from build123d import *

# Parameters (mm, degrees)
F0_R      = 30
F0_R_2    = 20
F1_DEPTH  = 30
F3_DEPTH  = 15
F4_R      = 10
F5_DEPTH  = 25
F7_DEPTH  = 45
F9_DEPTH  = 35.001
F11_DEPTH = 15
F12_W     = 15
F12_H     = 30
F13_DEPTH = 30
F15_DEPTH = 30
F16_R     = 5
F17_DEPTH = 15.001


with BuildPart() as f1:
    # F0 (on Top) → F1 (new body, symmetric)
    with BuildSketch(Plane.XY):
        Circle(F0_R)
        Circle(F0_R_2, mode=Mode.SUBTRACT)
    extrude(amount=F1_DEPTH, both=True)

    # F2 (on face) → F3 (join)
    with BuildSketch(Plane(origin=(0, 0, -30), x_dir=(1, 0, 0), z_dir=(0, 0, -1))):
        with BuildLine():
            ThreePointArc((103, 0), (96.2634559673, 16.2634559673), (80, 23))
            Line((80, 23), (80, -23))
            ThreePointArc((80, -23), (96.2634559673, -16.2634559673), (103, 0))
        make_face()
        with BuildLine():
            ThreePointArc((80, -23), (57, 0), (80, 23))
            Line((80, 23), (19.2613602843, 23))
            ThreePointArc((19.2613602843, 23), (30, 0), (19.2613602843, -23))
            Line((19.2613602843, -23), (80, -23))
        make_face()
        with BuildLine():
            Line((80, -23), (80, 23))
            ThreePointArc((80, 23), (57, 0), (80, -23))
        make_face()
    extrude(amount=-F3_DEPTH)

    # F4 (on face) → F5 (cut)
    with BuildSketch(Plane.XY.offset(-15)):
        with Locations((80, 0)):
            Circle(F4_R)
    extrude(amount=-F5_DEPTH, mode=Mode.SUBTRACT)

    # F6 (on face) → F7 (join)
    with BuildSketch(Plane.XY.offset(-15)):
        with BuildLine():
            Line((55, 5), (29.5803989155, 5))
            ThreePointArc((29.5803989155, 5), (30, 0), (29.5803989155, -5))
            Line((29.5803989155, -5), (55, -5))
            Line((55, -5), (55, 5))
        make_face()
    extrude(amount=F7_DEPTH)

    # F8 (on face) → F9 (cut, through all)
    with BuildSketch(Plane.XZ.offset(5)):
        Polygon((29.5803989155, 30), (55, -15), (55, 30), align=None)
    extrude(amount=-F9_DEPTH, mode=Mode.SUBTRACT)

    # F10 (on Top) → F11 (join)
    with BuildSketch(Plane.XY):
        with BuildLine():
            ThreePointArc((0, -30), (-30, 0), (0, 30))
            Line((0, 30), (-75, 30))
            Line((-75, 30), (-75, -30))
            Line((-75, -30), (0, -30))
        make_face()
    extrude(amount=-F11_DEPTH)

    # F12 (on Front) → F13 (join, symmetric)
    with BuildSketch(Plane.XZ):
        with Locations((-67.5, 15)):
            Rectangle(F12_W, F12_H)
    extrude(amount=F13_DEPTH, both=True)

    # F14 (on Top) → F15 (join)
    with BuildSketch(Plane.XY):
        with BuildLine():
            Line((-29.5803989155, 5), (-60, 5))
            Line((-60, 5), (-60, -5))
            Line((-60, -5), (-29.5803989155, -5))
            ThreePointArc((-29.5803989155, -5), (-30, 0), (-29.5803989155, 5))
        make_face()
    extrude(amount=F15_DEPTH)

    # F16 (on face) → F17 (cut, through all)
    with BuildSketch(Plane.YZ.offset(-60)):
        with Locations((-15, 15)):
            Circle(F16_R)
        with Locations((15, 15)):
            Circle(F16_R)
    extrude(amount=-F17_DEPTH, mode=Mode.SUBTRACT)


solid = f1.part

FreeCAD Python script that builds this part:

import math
import FreeCAD as App
import Part
import Sketcher

V = App.Vector
Q = App.Units.Quantity


def add_polygon(sketch, points):
    """Adds a closed chain of lines whose ends are joined by coincident constraints."""
    first, n = sketch.GeometryCount, len(points)
    for a, b in zip(points, points[1:] + points[:1]):
        sketch.addGeometry(Part.LineSegment(App.Vector(*a, 0), App.Vector(*b, 0)), False)
    for i in range(n):
        sketch.addConstraint(Sketcher.Constraint("Coincident", first + i, 2, first + (i + 1) % n, 1))

doc = App.newDocument("Part")
body = doc.addObject("PartDesign::Body", "Body")

sketch1 = body.newObject("Sketcher::SketchObject", "Sketch")
sketch1.AttachmentSupport = (doc.getObject("XY_Plane"), [""])
sketch1.MapMode = "FlatFace"
sketch1.addGeometry(Part.Circle(V(0, 0, 0), V(0, 0, 1), 30), False)
sketch1.addGeometry(Part.Circle(V(0, 0, 0), V(0, 0, 1), 20), False)
sketch1.addConstraint(Sketcher.Constraint("Coincident", 0, 3, -1, 1))
sketch1.addConstraint(Sketcher.Constraint("Coincident", 1, 3, -1, 1))
sketch1.addConstraint(Sketcher.Constraint("Diameter", 0, Q("60 mm")))
sketch1.addConstraint(Sketcher.Constraint("Diameter", 1, Q("40 mm")))
pad1 = body.newObject("PartDesign::Pad", "Pad")
pad1.Profile = sketch1
pad1.Length = 60
pad1.Midplane = True

sketch2 = body.newObject("Sketcher::SketchObject", "Sketch001")
sketch2.AttachmentSupport = (doc.getObject("XY_Plane"), [""])
sketch2.MapMode = "FlatFace"
sketch2.AttachmentOffset = App.Placement(V(0, 0, -30), App.Rotation())
sketch2.addGeometry(Part.ArcOfCircle(Part.Circle(V(80, 0, 0), V(0, 0, 1), 23), math.radians(-90), math.radians(0)), False)
sketch2.addGeometry(Part.LineSegment(V(80, -23, 0), V(19, -23, 0)), False)
sketch2.addGeometry(Part.ArcOfCircle(Part.Circle(V(0, 0, 0), V(0, 0, 1), 30), math.radians(-50), math.radians(50)), False)
sketch2.addGeometry(Part.LineSegment(V(19, 23, 0), V(80, 23, 0)), False)
sketch2.addGeometry(Part.ArcOfCircle(Part.Circle(V(80, 0, 0), V(0, 0, 1), 23), math.radians(0), math.radians(90)), False)
sketch2.addConstraint(Sketcher.Constraint("Tangent", 0, 1, 1, 1))
sketch2.addConstraint(Sketcher.Constraint("Coincident", 1, 2, 2, 1))
sketch2.addConstraint(Sketcher.Constraint("Coincident", 2, 2, 3, 1))
sketch2.addConstraint(Sketcher.Constraint("Tangent", 3, 2, 4, 2))
sketch2.addConstraint(Sketcher.Constraint("Tangent", 4, 1, 0, 2))
sketch2.addConstraint(Sketcher.Constraint("Horizontal", 1))
sketch2.addConstraint(Sketcher.Constraint("Horizontal", 3))
sketch2.addConstraint(Sketcher.Constraint("Coincident", 2, 3, -1, 1))
sketch2.addConstraint(Sketcher.Constraint("Equal", 0, 4))
sketch2.addConstraint(Sketcher.Constraint("PointOnObject", 0, 3, -1))
sketch2.addConstraint(Sketcher.Constraint("PointOnObject", 4, 1, -1))
sketch2.addConstraint(Sketcher.Constraint("Radius", 0, Q("23 mm")))
sketch2.addConstraint(Sketcher.Constraint("Radius", 2, Q("30 mm")))
sketch2.addConstraint(Sketcher.Constraint("DistanceX", -1, 1, 0, 3, Q("80 mm")))
pad2 = body.newObject("PartDesign::Pad", "Pad001")
pad2.Profile = sketch2
pad2.Length = 15

sketch3 = body.newObject("Sketcher::SketchObject", "Sketch002")
sketch3.AttachmentSupport = (doc.getObject("XY_Plane"), [""])
sketch3.MapMode = "FlatFace"
sketch3.AttachmentOffset = App.Placement(V(0, 0, -15), App.Rotation())
sketch3.addGeometry(Part.Circle(V(80, 0, 0), V(0, 0, 1), 10), False)
sketch3.addConstraint(Sketcher.Constraint("PointOnObject", 0, 3, -1))
sketch3.addConstraint(Sketcher.Constraint("Diameter", 0, Q("20 mm")))
sketch3.addConstraint(Sketcher.Constraint("DistanceX", -1, 1, 0, 3, Q("80 mm")))
pocket1 = body.newObject("PartDesign::Pocket", "Pocket")
pocket1.Profile = sketch3
pocket1.Length = 25

sketch4 = body.newObject("Sketcher::SketchObject", "Sketch003")
sketch4.AttachmentSupport = (doc.getObject("XY_Plane"), [""])
sketch4.MapMode = "FlatFace"
sketch4.AttachmentOffset = App.Placement(V(0, 0, -15), App.Rotation())
sketch4.addGeometry(Part.LineSegment(V(55, 5, 0), V(30, 5, 0)), False)
sketch4.addGeometry(Part.ArcOfCircle(Part.Circle(V(0, 0, 0), V(0, 0, 1), 30), math.radians(-9.59), math.radians(9.59)), False)
sketch4.addGeometry(Part.LineSegment(V(30, -5, 0), V(55, -5, 0)), False)
sketch4.addGeometry(Part.LineSegment(V(55, -5, 0), V(55, 5, 0)), False)
sketch4.addConstraint(Sketcher.Constraint("Coincident", 0, 2, 1, 2))
sketch4.addConstraint(Sketcher.Constraint("Coincident", 1, 1, 2, 1))
sketch4.addConstraint(Sketcher.Constraint("Coincident", 2, 2, 3, 1))
sketch4.addConstraint(Sketcher.Constraint("Coincident", 3, 2, 0, 1))
sketch4.addConstraint(Sketcher.Constraint("Horizontal", 0))
sketch4.addConstraint(Sketcher.Constraint("Horizontal", 2))
sketch4.addConstraint(Sketcher.Constraint("Vertical", 3))
sketch4.addConstraint(Sketcher.Constraint("Coincident", 1, 3, -1, 1))
sketch4.addConstraint(Sketcher.Constraint("Vertical", 0, 2, 1, 1))
sketch4.addConstraint(Sketcher.Constraint("Radius", 1, Q("30 mm")))
sketch4.addConstraint(Sketcher.Constraint("DistanceY", 3, 1, 3, 2, Q("10 mm")))
sketch4.addConstraint(Sketcher.Constraint("DistanceX", -1, 1, 2, 2, Q("55 mm")))
pad3 = body.newObject("PartDesign::Pad", "Pad002")
pad3.Profile = sketch4
pad3.Length = 45

sketch5 = body.newObject("Sketcher::SketchObject", "Sketch004")
sketch5.AttachmentSupport = (doc.getObject("XZ_Plane"), [""])
sketch5.MapMode = "FlatFace"
sketch5.AttachmentOffset = App.Placement(V(0, 0, 5), App.Rotation())
add_polygon(sketch5, [(30, 30), (55, -15), (55, 30)])
sketch5.addConstraint(Sketcher.Constraint("Vertical", 1))
sketch5.addConstraint(Sketcher.Constraint("Horizontal", 2))
sketch5.addConstraint(Sketcher.Constraint("DistanceY", 1, 1, 1, 2, Q("45 mm")))
sketch5.addConstraint(Sketcher.Constraint("DistanceX", -1, 1, 0, 2, Q("55 mm")))
sketch5.addConstraint(Sketcher.Constraint("DistanceY", 0, 2, -1, 1, Q("15 mm")))
sketch5.addConstraint(Sketcher.Constraint("DistanceX", 2, 2, 2, 1, Q("25.419601 mm")))
pocket2 = body.newObject("PartDesign::Pocket", "Pocket001")
pocket2.Profile = sketch5
pocket2.Type = "ThroughAll"

sketch6 = body.newObject("Sketcher::SketchObject", "Sketch005")
sketch6.AttachmentSupport = (doc.getObject("XY_Plane"), [""])
sketch6.MapMode = "FlatFace"
sketch6.addGeometry(Part.ArcOfCircle(Part.Circle(V(0, 0, 0), V(0, 0, 1), 30), math.radians(90), math.radians(270)), False)
sketch6.addGeometry(Part.LineSegment(V(0, 30, 0), V(-75, 30, 0)), False)
sketch6.addGeometry(Part.LineSegment(V(-75, 30, 0), V(-75, -30, 0)), False)
sketch6.addGeometry(Part.LineSegment(V(-75, -30, 0), V(0, -30, 0)), False)
sketch6.addConstraint(Sketcher.Constraint("Tangent", 0, 1, 1, 1))
sketch6.addConstraint(Sketcher.Constraint("Coincident", 1, 2, 2, 1))
sketch6.addConstraint(Sketcher.Constraint("Coincident", 2, 2, 3, 1))
sketch6.addConstraint(Sketcher.Constraint("Tangent", 3, 2, 0, 2))
sketch6.addConstraint(Sketcher.Constraint("Horizontal", 1))
sketch6.addConstraint(Sketcher.Constraint("Vertical", 2))
sketch6.addConstraint(Sketcher.Constraint("Horizontal", 3))
sketch6.addConstraint(Sketcher.Constraint("Coincident", 0, 3, -1, 1))
sketch6.addConstraint(Sketcher.Constraint("Radius", 0, Q("30 mm")))
sketch6.addConstraint(Sketcher.Constraint("DistanceX", 1, 2, 1, 1, Q("75 mm")))
pad4 = body.newObject("PartDesign::Pad", "Pad003")
pad4.Profile = sketch6
pad4.Length = 15
pad4.Reversed = True

sketch7 = body.newObject("Sketcher::SketchObject", "Sketch006")
sketch7.AttachmentSupport = (doc.getObject("XZ_Plane"), [""])
sketch7.MapMode = "FlatFace"
add_polygon(sketch7, [(-75, 30), (-75, 0), (-60, 0), (-60, 30)])
sketch7.addConstraint(Sketcher.Constraint("Vertical", 0))
sketch7.addConstraint(Sketcher.Constraint("Horizontal", 1))
sketch7.addConstraint(Sketcher.Constraint("Vertical", 2))
sketch7.addConstraint(Sketcher.Constraint("Horizontal", 3))
sketch7.addConstraint(Sketcher.Constraint("PointOnObject", 0, 2, -1))
sketch7.addConstraint(Sketcher.Constraint("DistanceX", 1, 1, 1, 2, Q("15 mm")))
sketch7.addConstraint(Sketcher.Constraint("DistanceY", 0, 2, 0, 1, Q("30 mm")))
sketch7.addConstraint(Sketcher.Constraint("DistanceX", 0, 2, -1, 1, Q("75 mm")))
pad5 = body.newObject("PartDesign::Pad", "Pad004")
pad5.Profile = sketch7
pad5.Length = 60
pad5.Midplane = True

sketch8 = body.newObject("Sketcher::SketchObject", "Sketch007")
sketch8.AttachmentSupport = (doc.getObject("XY_Plane"), [""])
sketch8.MapMode = "FlatFace"
sketch8.addGeometry(Part.LineSegment(V(-30, 5, 0), V(-60, 5, 0)), False)
sketch8.addGeometry(Part.LineSegment(V(-60, 5, 0), V(-60, -5, 0)), False)
sketch8.addGeometry(Part.LineSegment(V(-60, -5, 0), V(-30, -5, 0)), False)
sketch8.addGeometry(Part.ArcOfCircle(Part.Circle(V(0, 0, 0), V(0, 0, 1), 30), math.radians(170.41), math.radians(189.59)), False)
sketch8.addConstraint(Sketcher.Constraint("Coincident", 0, 2, 1, 1))
sketch8.addConstraint(Sketcher.Constraint("Coincident", 1, 2, 2, 1))
sketch8.addConstraint(Sketcher.Constraint("Coincident", 2, 2, 3, 2))
sketch8.addConstraint(Sketcher.Constraint("Coincident", 3, 1, 0, 1))
sketch8.addConstraint(Sketcher.Constraint("Horizontal", 0))
sketch8.addConstraint(Sketcher.Constraint("Vertical", 1))
sketch8.addConstraint(Sketcher.Constraint("Horizontal", 2))
sketch8.addConstraint(Sketcher.Constraint("Coincident", 3, 3, -1, 1))
sketch8.addConstraint(Sketcher.Constraint("Vertical", 2, 2, 3, 1))
sketch8.addConstraint(Sketcher.Constraint("Radius", 3, Q("30 mm")))
sketch8.addConstraint(Sketcher.Constraint("DistanceY", 1, 2, 1, 1, Q("10 mm")))
sketch8.addConstraint(Sketcher.Constraint("DistanceX", 0, 2, -1, 1, Q("60 mm")))
pad6 = body.newObject("PartDesign::Pad", "Pad005")
pad6.Profile = sketch8
pad6.Length = 30

sketch9 = body.newObject("Sketcher::SketchObject", "Sketch008")
sketch9.AttachmentSupport = (doc.getObject("YZ_Plane"), [""])
sketch9.MapMode = "FlatFace"
sketch9.AttachmentOffset = App.Placement(V(0, 0, -60), App.Rotation())
sketch9.addGeometry(Part.Circle(V(-15, 15, 0), V(0, 0, 1), 5), False)
sketch9.addGeometry(Part.Circle(V(15, 15, 0), V(0, 0, 1), 5), False)
sketch9.addConstraint(Sketcher.Constraint("Equal", 0, 1))
sketch9.addConstraint(Sketcher.Constraint("Symmetric", 0, 3, 1, 3, -2))
sketch9.addConstraint(Sketcher.Constraint("Diameter", 0, Q("10 mm")))
sketch9.addConstraint(Sketcher.Constraint("DistanceX", 0, 3, -1, 1, Q("15 mm")))
sketch9.addConstraint(Sketcher.Constraint("DistanceY", -1, 1, 0, 3, Q("15 mm")))
pocket3 = body.newObject("PartDesign::Pocket", "Pocket002")
pocket3.Profile = sketch9
pocket3.Type = "ThroughAll"

doc.recompute()
